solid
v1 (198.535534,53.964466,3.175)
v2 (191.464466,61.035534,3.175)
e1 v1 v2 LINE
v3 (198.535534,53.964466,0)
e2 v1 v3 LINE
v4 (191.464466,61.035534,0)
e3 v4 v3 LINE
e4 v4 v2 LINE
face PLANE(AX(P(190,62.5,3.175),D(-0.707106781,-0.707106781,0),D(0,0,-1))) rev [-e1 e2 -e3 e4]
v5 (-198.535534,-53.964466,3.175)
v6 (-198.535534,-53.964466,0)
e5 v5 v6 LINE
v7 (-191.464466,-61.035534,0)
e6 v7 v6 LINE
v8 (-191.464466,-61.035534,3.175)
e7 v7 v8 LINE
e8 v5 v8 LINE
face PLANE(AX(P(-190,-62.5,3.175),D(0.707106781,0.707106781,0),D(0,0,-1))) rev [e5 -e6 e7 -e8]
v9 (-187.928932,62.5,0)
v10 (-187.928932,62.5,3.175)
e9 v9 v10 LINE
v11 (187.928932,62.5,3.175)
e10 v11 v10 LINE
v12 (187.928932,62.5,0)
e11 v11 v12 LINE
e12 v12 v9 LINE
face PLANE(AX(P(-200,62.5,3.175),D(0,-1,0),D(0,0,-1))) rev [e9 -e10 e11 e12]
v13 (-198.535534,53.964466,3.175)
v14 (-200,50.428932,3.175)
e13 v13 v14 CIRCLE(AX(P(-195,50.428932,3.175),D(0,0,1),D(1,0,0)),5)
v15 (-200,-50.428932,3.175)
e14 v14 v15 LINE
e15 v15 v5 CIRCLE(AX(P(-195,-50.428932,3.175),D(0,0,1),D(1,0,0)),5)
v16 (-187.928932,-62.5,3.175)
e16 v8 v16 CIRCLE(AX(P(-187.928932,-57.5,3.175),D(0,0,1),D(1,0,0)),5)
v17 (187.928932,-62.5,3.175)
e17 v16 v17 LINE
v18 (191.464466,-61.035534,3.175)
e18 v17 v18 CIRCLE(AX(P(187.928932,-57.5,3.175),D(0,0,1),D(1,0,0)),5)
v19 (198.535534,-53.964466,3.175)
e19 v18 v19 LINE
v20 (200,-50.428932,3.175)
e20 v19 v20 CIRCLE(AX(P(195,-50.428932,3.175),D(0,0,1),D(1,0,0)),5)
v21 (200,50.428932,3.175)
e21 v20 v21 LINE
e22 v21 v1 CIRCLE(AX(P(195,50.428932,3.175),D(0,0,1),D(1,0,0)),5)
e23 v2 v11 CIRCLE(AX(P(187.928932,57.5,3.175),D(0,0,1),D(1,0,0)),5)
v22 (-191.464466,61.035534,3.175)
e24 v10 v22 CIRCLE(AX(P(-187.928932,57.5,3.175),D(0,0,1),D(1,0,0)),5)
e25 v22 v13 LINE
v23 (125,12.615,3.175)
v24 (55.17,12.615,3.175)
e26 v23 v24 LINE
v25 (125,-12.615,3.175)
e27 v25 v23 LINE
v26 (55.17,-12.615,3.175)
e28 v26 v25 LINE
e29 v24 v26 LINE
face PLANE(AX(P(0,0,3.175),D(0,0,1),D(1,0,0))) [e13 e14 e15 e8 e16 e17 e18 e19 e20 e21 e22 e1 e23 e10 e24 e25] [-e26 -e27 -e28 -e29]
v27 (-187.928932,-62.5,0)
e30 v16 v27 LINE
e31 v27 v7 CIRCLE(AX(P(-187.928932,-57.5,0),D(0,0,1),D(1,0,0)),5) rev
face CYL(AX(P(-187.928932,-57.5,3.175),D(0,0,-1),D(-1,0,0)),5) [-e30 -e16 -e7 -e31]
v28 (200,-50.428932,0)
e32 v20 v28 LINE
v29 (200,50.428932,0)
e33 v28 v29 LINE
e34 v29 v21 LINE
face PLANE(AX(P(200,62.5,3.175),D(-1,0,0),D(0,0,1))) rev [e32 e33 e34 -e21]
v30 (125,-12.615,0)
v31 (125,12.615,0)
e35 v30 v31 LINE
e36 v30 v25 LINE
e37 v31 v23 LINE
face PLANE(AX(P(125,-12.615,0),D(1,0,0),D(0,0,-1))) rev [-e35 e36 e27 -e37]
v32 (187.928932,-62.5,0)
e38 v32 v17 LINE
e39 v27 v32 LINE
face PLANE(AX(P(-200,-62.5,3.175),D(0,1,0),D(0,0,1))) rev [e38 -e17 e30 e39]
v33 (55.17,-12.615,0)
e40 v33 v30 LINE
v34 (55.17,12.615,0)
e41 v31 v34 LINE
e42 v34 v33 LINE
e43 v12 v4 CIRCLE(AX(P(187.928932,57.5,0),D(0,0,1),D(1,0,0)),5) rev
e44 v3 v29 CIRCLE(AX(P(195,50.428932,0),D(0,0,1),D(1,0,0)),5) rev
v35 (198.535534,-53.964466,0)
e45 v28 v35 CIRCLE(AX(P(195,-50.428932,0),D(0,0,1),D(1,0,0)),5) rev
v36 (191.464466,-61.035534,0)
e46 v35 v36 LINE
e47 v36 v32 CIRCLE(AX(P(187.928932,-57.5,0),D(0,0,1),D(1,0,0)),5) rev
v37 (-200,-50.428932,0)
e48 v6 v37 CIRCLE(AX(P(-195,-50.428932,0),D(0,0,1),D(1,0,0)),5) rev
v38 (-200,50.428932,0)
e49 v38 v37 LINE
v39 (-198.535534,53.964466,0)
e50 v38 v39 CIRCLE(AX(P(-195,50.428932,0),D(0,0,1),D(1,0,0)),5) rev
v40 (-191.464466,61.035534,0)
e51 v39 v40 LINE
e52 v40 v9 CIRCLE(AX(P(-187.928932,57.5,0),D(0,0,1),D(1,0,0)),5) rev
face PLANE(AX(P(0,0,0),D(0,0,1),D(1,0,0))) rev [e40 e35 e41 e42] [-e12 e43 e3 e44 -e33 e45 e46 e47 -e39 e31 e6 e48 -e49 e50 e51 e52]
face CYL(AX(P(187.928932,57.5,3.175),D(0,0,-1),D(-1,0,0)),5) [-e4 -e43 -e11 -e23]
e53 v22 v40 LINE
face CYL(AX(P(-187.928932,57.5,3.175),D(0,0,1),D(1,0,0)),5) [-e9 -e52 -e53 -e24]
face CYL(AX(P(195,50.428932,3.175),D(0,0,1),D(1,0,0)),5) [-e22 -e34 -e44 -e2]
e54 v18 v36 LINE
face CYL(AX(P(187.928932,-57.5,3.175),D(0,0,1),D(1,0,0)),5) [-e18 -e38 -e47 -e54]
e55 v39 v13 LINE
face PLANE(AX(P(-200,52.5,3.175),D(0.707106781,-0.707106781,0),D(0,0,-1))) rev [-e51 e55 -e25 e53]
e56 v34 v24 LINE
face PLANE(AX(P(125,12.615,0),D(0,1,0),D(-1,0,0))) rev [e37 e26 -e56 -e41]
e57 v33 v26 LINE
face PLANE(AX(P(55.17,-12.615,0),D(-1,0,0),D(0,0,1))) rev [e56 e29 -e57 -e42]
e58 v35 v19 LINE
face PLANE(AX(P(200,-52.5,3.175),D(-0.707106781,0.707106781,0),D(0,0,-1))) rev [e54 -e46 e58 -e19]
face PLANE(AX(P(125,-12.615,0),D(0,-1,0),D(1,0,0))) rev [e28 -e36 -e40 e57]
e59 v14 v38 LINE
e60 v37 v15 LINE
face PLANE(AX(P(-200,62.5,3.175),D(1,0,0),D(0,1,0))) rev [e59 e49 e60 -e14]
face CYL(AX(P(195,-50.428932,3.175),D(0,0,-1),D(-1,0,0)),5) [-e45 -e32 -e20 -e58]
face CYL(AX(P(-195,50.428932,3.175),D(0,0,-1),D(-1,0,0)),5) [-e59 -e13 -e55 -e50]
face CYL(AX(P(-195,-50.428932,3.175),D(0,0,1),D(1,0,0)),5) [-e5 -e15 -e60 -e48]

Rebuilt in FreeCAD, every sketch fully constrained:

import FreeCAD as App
import Part
import Sketcher
from FreeCAD import Vector


def edges_at(feature, points):
    """Names of the edges that pass closest to the given points."""
    edges = feature.Shape.Edges
    near = lambda p: min(range(len(edges)), key=lambda i: edges[i].distToShape(Part.Vertex(*p))[0])
    return sorted({f"Edge{near(p) + 1}" for p in points})

doc = App.newDocument("Part")
params = doc.addObject("Spreadsheet::Sheet", "Params")
for row, (alias, value) in enumerate([
    ("sketch1_width", "400 mm"),
    ("sketch1_height", "125 mm"),
    ("pad1_length", "3.175 mm"),
    ("sketch2_width", "69.83 mm"),
    ("sketch2_height", "25.23 mm"),
    ("pocket1_length", "3.175 mm"),
    ("chamfer_size", "10 mm"),
    ("fillet_radius", "5 mm"),
], start=1):
    params.set(f"A{row}", alias)
    params.set(f"B{row}", "=" + value)
    params.setAlias(f"B{row}", alias)

body = doc.addObject("PartDesign::Body", "Body")

sketch1 = body.newObject("Sketcher::SketchObject", "Sketch")
sketch1.AttachmentSupport = (doc.getObject("XY_Plane"), [""])
sketch1.MapMode = "FlatFace"
sketch1.addGeometry([
    Part.LineSegment(Vector(-200, 62.5, 0), Vector(-200, -62.5, 0)),
    Part.LineSegment(Vector(-200, -62.5, 0), Vector(200, -62.5, 0)),
    Part.LineSegment(Vector(200, -62.5, 0), Vector(200, 62.5, 0)),
    Part.LineSegment(Vector(200, 62.5, 0), Vector(-200, 62.5, 0)),
], False)
sketch1.addConstraint([
    Sketcher.Constraint("Coincident", 0, 2, 1, 1),
    Sketcher.Constraint("Coincident", 1, 2, 2, 1),
    Sketcher.Constraint("Coincident", 2, 2, 3, 1),
    Sketcher.Constraint("Coincident", 3, 2, 0, 1),
    Sketcher.Constraint("Vertical", 0),
    Sketcher.Constraint("Horizontal", 1),
    Sketcher.Constraint("Vertical", 2),
    Sketcher.Constraint("Horizontal", 3),
    Sketcher.Constraint("Symmetric", 0, 2, 2, 2, -1, 1),
    Sketcher.Constraint("DistanceX", 1, 1, 1, 2, 400.0),
    Sketcher.Constraint("DistanceY", 0, 2, 0, 1, 125.0),
])
sketch1.setExpression("Constraints[9]", "Params.sketch1_width")
sketch1.setExpression("Constraints[10]", "Params.sketch1_height")
pad1 = body.newObject("PartDesign::Pad", "Pad")
pad1.Profile = sketch1
pad1.setExpression("Length", "Params.pad1_length")

sketch2 = body.newObject("Sketcher::SketchObject", "Sketch001")
sketch2.AttachmentSupport = (doc.getObject("XY_Plane"), [""])
sketch2.MapMode = "FlatFace"
sketch2.AttachmentOffset = App.Placement(Vector(0, 0, 3.175), App.Rotation())
sketch2.addGeometry([
    Part.LineSegment(Vector(55.17, 12.615, 0), Vector(55.17, -12.615, 0)),
    Part.LineSegment(Vector(55.17, -12.615, 0), Vector(125, -12.615, 0)),
    Part.LineSegment(Vector(125, -12.615, 0), Vector(125, 12.615, 0)),
    Part.LineSegment(Vector(125, 12.615, 0), Vector(55.17, 12.615, 0)),
], False)
sketch2.addConstraint([
    Sketcher.Constraint("Coincident", 0, 2, 1, 1),
    Sketcher.Constraint("Coincident", 1, 2, 2, 1),
    Sketcher.Constraint("Coincident", 2, 2, 3, 1),
    Sketcher.Constraint("Coincident", 3, 2, 0, 1),
    Sketcher.Constraint("Vertical", 0),
    Sketcher.Constraint("Horizontal", 1),
    Sketcher.Constraint("Vertical", 2),
    Sketcher.Constraint("Horizontal", 3),
    Sketcher.Constraint("DistanceX", -1, 1, 1, 2, 125.0),
    Sketcher.Constraint("DistanceX", 1, 1, 1, 2, 69.83),
    Sketcher.Constraint("DistanceY", 0, 2, 0, 1, 25.23),
    Sketcher.Constraint("DistanceY", 0, 2, -1, 1, 12.615),
])
sketch2.setExpression("Constraints[9]", "Params.sketch2_width")
sketch2.setExpression("Constraints[10]", "Params.sketch2_height")
pocket1 = body.newObject("PartDesign::Pocket", "Pocket")
pocket1.Profile = sketch2
pocket1.setExpression("Length", "Params.pocket1_length")
doc.recompute()

chamfer = body.newObject("PartDesign::Chamfer", "Chamfer")
chamfer.Base = (pocket1, edges_at(pocket1, [
    (200, -62.5, 1.587),
    (-200, -62.5, 1.587),
    (-200, 62.5, 1.587),
    (200, 62.5, 1.587),
]))
chamfer.setExpression("Size", "Params.chamfer_size")
doc.recompute()

fillet = body.newObject("PartDesign::Fillet", "Fillet")
fillet.Base = (chamfer, edges_at(chamfer, [
    (200, 52.5, 1.587),
    (200, -52.5, 1.587),
    (-190, -62.5, 1.587),
    (190, -62.5, 1.587),
    (-190, 62.5, 1.587),
    (190, 62.5, 1.587),
    (-200, -52.5, 1.587),
    (-200, 52.5, 1.587),
]))
fillet.setExpression("Radius", "Params.fillet_radius")

doc.recompute()
